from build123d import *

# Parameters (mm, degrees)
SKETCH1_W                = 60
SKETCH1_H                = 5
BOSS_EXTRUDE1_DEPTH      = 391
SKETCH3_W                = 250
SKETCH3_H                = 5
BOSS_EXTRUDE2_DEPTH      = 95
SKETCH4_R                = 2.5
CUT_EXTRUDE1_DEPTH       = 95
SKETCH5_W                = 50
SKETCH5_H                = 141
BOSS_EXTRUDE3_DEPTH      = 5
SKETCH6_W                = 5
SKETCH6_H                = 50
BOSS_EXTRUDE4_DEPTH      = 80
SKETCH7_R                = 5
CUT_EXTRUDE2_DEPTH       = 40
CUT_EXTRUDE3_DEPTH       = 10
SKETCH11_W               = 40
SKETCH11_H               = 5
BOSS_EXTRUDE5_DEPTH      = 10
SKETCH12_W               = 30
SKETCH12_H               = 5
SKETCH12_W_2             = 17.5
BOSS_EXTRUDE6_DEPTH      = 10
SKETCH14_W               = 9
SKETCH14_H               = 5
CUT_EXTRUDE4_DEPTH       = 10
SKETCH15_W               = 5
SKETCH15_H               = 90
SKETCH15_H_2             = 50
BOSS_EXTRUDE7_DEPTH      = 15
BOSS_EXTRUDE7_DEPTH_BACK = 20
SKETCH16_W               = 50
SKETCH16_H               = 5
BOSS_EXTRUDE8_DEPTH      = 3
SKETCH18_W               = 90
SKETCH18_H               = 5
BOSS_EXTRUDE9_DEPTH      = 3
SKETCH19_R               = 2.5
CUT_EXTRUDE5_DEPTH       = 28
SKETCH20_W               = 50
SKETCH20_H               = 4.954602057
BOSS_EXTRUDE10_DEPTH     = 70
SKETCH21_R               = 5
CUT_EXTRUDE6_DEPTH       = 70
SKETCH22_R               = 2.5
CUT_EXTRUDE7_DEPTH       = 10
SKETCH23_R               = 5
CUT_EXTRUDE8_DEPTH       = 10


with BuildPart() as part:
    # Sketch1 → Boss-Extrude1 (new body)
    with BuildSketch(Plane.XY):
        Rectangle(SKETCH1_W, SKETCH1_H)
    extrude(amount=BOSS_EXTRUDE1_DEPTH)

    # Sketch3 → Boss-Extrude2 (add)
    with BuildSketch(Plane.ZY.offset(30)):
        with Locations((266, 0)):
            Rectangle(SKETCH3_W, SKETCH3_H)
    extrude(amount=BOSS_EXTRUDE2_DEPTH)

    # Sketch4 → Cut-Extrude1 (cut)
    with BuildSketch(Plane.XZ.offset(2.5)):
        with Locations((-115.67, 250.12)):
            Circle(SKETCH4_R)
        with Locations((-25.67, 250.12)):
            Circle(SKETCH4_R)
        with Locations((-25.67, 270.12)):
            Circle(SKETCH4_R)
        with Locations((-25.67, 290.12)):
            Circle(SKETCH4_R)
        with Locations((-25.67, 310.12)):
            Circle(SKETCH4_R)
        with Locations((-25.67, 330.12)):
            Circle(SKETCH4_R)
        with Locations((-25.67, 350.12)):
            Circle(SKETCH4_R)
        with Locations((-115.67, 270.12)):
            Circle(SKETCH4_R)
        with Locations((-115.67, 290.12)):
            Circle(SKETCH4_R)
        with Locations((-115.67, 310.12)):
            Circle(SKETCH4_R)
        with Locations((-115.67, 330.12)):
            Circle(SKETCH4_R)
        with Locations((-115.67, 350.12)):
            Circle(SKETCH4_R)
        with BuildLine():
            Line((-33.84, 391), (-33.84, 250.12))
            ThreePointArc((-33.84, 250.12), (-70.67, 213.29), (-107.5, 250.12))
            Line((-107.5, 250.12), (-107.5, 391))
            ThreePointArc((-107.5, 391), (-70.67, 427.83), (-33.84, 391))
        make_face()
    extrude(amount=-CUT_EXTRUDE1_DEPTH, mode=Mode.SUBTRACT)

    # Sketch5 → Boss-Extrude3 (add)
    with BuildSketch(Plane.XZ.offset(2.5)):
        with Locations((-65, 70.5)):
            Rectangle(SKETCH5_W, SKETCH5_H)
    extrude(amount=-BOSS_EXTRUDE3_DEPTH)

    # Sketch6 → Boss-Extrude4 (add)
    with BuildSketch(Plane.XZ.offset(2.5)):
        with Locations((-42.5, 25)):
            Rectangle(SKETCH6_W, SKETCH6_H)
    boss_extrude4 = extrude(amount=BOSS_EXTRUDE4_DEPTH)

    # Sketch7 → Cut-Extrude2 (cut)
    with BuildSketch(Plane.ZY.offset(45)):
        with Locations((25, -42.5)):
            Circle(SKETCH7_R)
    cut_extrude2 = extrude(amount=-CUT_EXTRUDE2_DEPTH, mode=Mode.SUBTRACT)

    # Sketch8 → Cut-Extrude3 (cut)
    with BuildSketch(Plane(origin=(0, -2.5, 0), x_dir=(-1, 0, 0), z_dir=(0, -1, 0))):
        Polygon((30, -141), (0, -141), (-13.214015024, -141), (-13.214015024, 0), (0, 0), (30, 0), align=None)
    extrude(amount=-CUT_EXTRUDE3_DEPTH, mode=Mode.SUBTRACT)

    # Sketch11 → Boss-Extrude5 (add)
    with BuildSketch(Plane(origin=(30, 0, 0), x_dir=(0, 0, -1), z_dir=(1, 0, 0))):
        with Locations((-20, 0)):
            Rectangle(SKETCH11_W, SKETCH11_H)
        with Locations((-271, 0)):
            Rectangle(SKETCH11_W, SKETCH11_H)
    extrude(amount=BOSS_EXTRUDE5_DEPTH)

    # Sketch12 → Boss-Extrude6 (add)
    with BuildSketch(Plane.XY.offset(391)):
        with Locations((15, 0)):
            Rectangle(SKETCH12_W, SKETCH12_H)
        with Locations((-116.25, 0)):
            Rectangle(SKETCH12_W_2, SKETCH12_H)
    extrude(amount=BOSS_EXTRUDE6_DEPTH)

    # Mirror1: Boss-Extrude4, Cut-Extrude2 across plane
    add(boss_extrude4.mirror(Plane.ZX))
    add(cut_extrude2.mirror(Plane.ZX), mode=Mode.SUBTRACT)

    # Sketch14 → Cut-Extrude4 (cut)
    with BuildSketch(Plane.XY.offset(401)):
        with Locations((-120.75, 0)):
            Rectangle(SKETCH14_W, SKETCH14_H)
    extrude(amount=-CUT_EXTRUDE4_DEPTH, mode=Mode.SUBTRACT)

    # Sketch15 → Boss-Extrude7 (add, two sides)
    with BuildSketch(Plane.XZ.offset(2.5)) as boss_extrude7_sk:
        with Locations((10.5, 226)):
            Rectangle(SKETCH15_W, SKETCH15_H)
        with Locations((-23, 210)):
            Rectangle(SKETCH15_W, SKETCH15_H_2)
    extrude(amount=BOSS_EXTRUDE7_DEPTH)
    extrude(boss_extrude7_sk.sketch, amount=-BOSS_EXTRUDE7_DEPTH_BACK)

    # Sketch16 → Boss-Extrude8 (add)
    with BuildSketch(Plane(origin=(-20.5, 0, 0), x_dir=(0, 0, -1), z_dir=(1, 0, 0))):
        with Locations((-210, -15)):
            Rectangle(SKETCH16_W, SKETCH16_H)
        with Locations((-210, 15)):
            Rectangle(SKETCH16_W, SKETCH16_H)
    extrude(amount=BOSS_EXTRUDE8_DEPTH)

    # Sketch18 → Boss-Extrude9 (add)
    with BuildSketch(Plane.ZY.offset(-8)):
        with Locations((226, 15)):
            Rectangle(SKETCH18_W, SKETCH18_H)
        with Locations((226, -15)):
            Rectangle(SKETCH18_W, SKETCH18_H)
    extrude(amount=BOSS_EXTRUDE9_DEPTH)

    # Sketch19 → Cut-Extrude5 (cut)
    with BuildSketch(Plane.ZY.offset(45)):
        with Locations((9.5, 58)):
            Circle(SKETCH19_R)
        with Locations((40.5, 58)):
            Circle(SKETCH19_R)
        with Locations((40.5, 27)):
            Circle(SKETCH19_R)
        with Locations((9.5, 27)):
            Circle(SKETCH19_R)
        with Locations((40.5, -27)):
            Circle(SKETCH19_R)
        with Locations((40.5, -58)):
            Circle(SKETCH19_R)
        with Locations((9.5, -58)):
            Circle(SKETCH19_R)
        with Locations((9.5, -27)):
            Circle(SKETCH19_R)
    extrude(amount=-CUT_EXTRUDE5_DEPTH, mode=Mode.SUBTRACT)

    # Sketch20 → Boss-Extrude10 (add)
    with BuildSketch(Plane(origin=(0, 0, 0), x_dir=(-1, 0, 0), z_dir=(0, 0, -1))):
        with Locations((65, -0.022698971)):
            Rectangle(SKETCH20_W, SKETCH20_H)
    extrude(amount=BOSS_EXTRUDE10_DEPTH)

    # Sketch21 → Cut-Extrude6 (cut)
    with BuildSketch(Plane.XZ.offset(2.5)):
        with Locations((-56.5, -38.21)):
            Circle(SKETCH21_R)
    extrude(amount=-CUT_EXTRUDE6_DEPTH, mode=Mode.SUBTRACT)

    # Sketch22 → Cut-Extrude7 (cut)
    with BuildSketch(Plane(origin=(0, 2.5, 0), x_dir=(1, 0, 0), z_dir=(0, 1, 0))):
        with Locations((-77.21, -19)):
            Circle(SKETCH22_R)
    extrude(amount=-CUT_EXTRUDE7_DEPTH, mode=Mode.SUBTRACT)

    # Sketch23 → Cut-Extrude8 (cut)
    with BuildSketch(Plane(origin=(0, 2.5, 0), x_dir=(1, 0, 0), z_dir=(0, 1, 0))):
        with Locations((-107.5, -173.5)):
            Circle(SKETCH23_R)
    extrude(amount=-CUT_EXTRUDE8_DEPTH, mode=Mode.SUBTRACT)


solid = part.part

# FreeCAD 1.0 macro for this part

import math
import FreeCAD as App
import Part
import Sketcher
from FreeCAD import Vector


def add_polygon(sketch, points):
    """Adds a closed chain of lines whose ends are joined by coincident constraints."""
    first, n = sketch.GeometryCount, len(points)
    for a, b in zip(points, points[1:] + points[:1]):
        sketch.addGeometry(Part.LineSegment(App.Vector(*a, 0), App.Vector(*b, 0)), False)
    for i in range(n):
        sketch.addConstraint(Sketcher.Constraint("Coincident", first + i, 2, first + (i + 1) % n, 1))

doc = App.newDocument("Part")
body = doc.addObject("PartDesign::Body", "Body")

# Sketch on XY plane
sketch1 = body.newObject("Sketcher::SketchObject", "Sketch")
sketch1.AttachmentSupport = (doc.getObject("XY_Plane"), [""])
sketch1.MapMode = "FlatFace"
add_polygon(sketch1, [(-30, 2), (-30, -2), (30, -2), (30, 2)])  # lines 0-3
sketch1.addConstraint([
    Sketcher.Constraint("Vertical", 0),
    Sketcher.Constraint("Horizontal", 1),
    Sketcher.Constraint("Vertical", 2),
    Sketcher.Constraint("Horizontal", 3),
    Sketcher.Constraint("Symmetric", 0, 2, 2, 2, -1, 1),
    Sketcher.Constraint("DistanceX", 1, 1, 1, 2, 60.0),
    Sketcher.Constraint("DistanceY", 0, 2, 0, 1, 5.0),
])
pad1 = body.newObject("PartDesign::Pad", "Pad")
pad1.Profile = sketch1
pad1.Length = 391

# Sketch on YZ plane
sketch2 = body.newObject("Sketcher::SketchObject", "Sketch001")
sketch2.AttachmentSupport = (doc.getObject("YZ_Plane"), [""])
sketch2.MapMode = "FlatFace"
sketch2.AttachmentOffset = App.Placement(Vector(0, 0, -30), App.Rotation())
add_polygon(sketch2, [(2, 141), (-2, 141), (-2, 391), (2, 391)])  # lines 0-3
sketch2.addConstraint([
    Sketcher.Constraint("Horizontal", 0),
    Sketcher.Constraint("Vertical", 1),
    Sketcher.Constraint("Horizontal", 2),
    Sketcher.Constraint("Vertical", 3),
    Sketcher.Constraint("DistanceX", 0, 2, 0, 1, 5.0),
    Sketcher.Constraint("DistanceY", 1, 1, 1, 2, 250.0),
    Sketcher.Constraint("DistanceY", -1, 1, 0, 2, 141.0),
    Sketcher.Constraint("DistanceX", 0, 2, -1, 1, 2.5),
])
pad2 = body.newObject("PartDesign::Pad", "Pad001")
pad2.Profile = sketch2
pad2.Length = 95
pad2.Reversed = True

# Sketch on XZ plane
sketch3 = body.newObject("Sketcher::SketchObject", "Sketch002")
sketch3.AttachmentSupport = (doc.getObject("XZ_Plane"), [""])
sketch3.MapMode = "FlatFace"
sketch3.AttachmentOffset = App.Placement(Vector(0, 0, 2.5), App.Rotation())
sketch3.addGeometry([
    Part.Circle(Vector(-115.7, 250.1, 0), Vector(0, 0, 1), 2.5),  # 0
    Part.Circle(Vector(-25.7, 250.1, 0), Vector(0, 0, 1), 2.5),  # 1
    Part.Circle(Vector(-25.7, 270.1, 0), Vector(0, 0, 1), 2.5),  # 2
    Part.Circle(Vector(-25.7, 290.1, 0), Vector(0, 0, 1), 2.5),  # 3
    Part.Circle(Vector(-25.7, 310.1, 0), Vector(0, 0, 1), 2.5),  # 4
    Part.Circle(Vector(-25.7, 330.1, 0), Vector(0, 0, 1), 2.5),  # 5
    Part.Circle(Vector(-25.7, 350.1, 0), Vector(0, 0, 1), 2.5),  # 6
    Part.Circle(Vector(-115.7, 270.1, 0), Vector(0, 0, 1), 2.5),  # 7
    Part.Circle(Vector(-115.7, 290.1, 0), Vector(0, 0, 1), 2.5),  # 8
    Part.Circle(Vector(-115.7, 310.1, 0), Vector(0, 0, 1), 2.5),  # 9
    Part.Circle(Vector(-115.7, 330.1, 0), Vector(0, 0, 1), 2.5),  # 10
    Part.Circle(Vector(-115.7, 350.1, 0), Vector(0, 0, 1), 2.5),  # 11
    Part.LineSegment(Vector(-33.8, 250.1, 0), Vector(-33.8, 391, 0)),  # 12
    Part.ArcOfCircle(Part.Circle(Vector(-70.7, 391, 0), Vector(0, 0, 1), 36.8), math.radians(0), math.radians(180)),  # 13
    Part.LineSegment(Vector(-107.5, 391, 0), Vector(-107.5, 250.1, 0)),  # 14
    Part.ArcOfCircle(Part.Circle(Vector(-70.7, 250.1, 0), Vector(0, 0, 1), 36.8), math.radians(180), math.radians(360)),  # 15
], False)
sketch3.addConstraint([
    Sketcher.Constraint("Tangent", 12, 2, 13, 1),
    Sketcher.Constraint("Tangent", 13, 2, 14, 1),
    Sketcher.Constraint("Tangent", 14, 2, 15, 1),
    Sketcher.Constraint("Tangent", 15, 2, 12, 1),
    Sketcher.Constraint("Vertical", 12),
    Sketcher.Constraint("Vertical", 14),
    Sketcher.Constraint("Equal", 0, 1),
    Sketcher.Constraint("Equal", 1, 2),
    Sketcher.Constraint("Equal", 2, 3),
    Sketcher.Constraint("Equal", 3, 4),
    Sketcher.Constraint("Equal", 4, 5),
    Sketcher.Constraint("Equal", 5, 6),
    Sketcher.Constraint("Equal", 6, 7),
    Sketcher.Constraint("Equal", 7, 8),
    Sketcher.Constraint("Equal", 8, 9),
    Sketcher.Constraint("Equal", 9, 10),
    Sketcher.Constraint("Equal", 10, 11),
    Sketcher.Constraint("Horizontal", 0, 3, 1, 3),
    Sketcher.Constraint("Horizontal", 2, 3, 7, 3),
    Sketcher.Constraint("Horizontal", 3, 3, 8, 3),
    Sketcher.Constraint("Horizontal", 4, 3, 9, 3),
    Sketcher.Constraint("Horizontal", 5, 3, 10, 3),
    Sketcher.Constraint("Horizontal", 6, 3, 11, 3),
    Sketcher.Constraint("Horizontal", 1, 3, 15, 3),
    Sketcher.Constraint("Vertical", 1, 3, 2, 3),
    Sketcher.Constraint("Vertical", 2, 3, 3, 3),
    Sketcher.Constraint("Vertical", 3, 3, 4, 3),
    Sketcher.Constraint("Vertical", 4, 3, 5, 3),
    Sketcher.Constraint("Vertical", 5, 3, 6, 3),
    Sketcher.Constraint("Vertical", 0, 3, 7, 3),
    Sketcher.Constraint("Vertical", 7, 3, 8, 3),
    Sketcher.Constraint("Vertical", 8, 3, 9, 3),
    Sketcher.Constraint("Vertical", 9, 3, 10, 3),
    Sketcher.Constraint("Vertical", 10, 3, 11, 3),
    Sketcher.Constraint("Diameter", 0, 5.0),
    Sketcher.Constraint("Radius", 13, 36.83),
    Sketcher.Constraint("DistanceY", -1, 1, 13, 3, 391.0),
    Sketcher.Constraint("DistanceX", 0, 3, 1, 3, 90.0),
    Sketcher.Constraint("DistanceY", 1, 3, 2, 3, 20.0),
    Sketcher.Constraint("DistanceY", 2, 3, 3, 3, 20.0),
    Sketcher.Constraint("DistanceY", 3, 3, 4, 3, 20.0),
    Sketcher.Constraint("DistanceY", 4, 3, 5, 3, 20.0),
    Sketcher.Constraint("DistanceY", 5, 3, 6, 3, 20.0),
    Sketcher.Constraint("DistanceX", 13, 3, 6, 3, 45.0),
    Sketcher.Constraint("DistanceY", 12, 1, 12, 2, 140.88),
    Sketcher.Constraint("DistanceX", 13, 2, -1, 1, 107.5),
])
pocket1 = body.newObject("PartDesign::Pocket", "Pocket")
pocket1.Profile = sketch3
pocket1.Length = 95

# Sketch on XZ plane
sketch4 = body.newObject("Sketcher::SketchObject", "Sketch003")
sketch4.AttachmentSupport = (doc.getObject("XZ_Plane"), [""])
sketch4.MapMode = "FlatFace"
sketch4.AttachmentOffset = App.Placement(Vector(0, 0, 2.5), App.Rotation())
add_polygon(sketch4, [(-90, 141), (-90, 0), (-40, 0), (-40, 141)])  # lines 0-3
sketch4.addConstraint([
    Sketcher.Constraint("Vertical", 0),
    Sketcher.Constraint("Horizontal", 1),
    Sketcher.Constraint("Vertical", 2),
    Sketcher.Constraint("Horizontal", 3),
    Sketcher.Constraint("PointOnObject", 0, 2, -1),
    Sketcher.Constraint("DistanceX", 1, 1, 1, 2, 50.0),
    Sketcher.Constraint("DistanceY", 0, 2, 0, 1, 141.0),
    Sketcher.Constraint("DistanceX", 0, 2, -1, 1, 90.0),
])
pad3 = body.newObject("PartDesign::Pad", "Pad002")
pad3.Profile = sketch4
pad3.Length = 5
pad3.Reversed = True

# Sketch on XZ plane
sketch5 = body.newObject("Sketcher::SketchObject", "Sketch004")
sketch5.AttachmentSupport = (doc.getObject("XZ_Plane"), [""])
sketch5.MapMode = "FlatFace"
sketch5.AttachmentOffset = App.Placement(Vector(0, 0, 2.5), App.Rotation())
add_polygon(sketch5, [(-45, 50), (-45, 0), (-40, 0), (-40, 50)])  # lines 0-3
sketch5.addConstraint([
    Sketcher.Constraint("Vertical", 0),
    Sketcher.Constraint("Horizontal", 1),
    Sketcher.Constraint("Vertical", 2),
    Sketcher.Constraint("Horizontal", 3),
    Sketcher.Constraint("PointOnObject", 0, 2, -1),
    Sketcher.Constraint("DistanceX", 1, 1, 1, 2, 5.0),
    Sketcher.Constraint("DistanceY", 0, 2, 0, 1, 50.0),
    Sketcher.Constraint("DistanceX", 0, 2, -1, 1, 45.0),
])
pad4 = body.newObject("PartDesign::Pad", "Pad003")
pad4.Profile = sketch5
pad4.Length = 80

# Sketch on YZ plane
sketch6 = body.newObject("Sketcher::SketchObject", "Sketch005")
sketch6.AttachmentSupport = (doc.getObject("YZ_Plane"), [""])
sketch6.MapMode = "FlatFace"
sketch6.AttachmentOffset = App.Placement(Vector(0, 0, -45), App.Rotation())
sketch6.addGeometry(Part.Circle(Vector(-42, 25, 0), Vector(0, 0, 1), 5), False)
sketch6.addConstraint([
    Sketcher.Constraint("Diameter", 0, 10.0),
    Sketcher.Constraint("DistanceY", -1, 1, 0, 3, 25.0),
    Sketcher.Constraint("DistanceX", 0, 3, -1, 1, 42.5),
])
pocket2 = body.newObject("PartDesign::Pocket", "Pocket001")
pocket2.Profile = sketch6
pocket2.Length = 40
pocket2.Reversed = True

# Sketch on XZ plane
sketch7 = body.newObject("Sketcher::SketchObject", "Sketch006")
sketch7.AttachmentSupport = (doc.getObject("XZ_Plane"), [""])
sketch7.MapMode = "FlatFace"
sketch7.AttachmentOffset = App.Placement(Vector(0, 0, 2.5), App.Rotation())
add_polygon(sketch7, [(13, 141), (-30, 141), (-30, 0), (13, 0)])  # lines 0-3
sketch7.addConstraint([
    Sketcher.Constraint("Horizontal", 0),
    Sketcher.Constraint("Vertical", 1),
    Sketcher.Constraint("Horizontal", 2),
    Sketcher.Constraint("Vertical", 3),
    Sketcher.Constraint("PointOnObject", 1, 2, -1),
    Sketcher.Constraint("DistanceY", 1, 2, 1, 1, 141.0),
    Sketcher.Constraint("DistanceX", 0, 2, -1, 1, 30.0),
    Sketcher.Constraint("DistanceX", 0, 2, 0, 1, 43.214015),
])
pocket3 = body.newObject("PartDesign::Pocket", "Pocket002")
pocket3.Profile = sketch7
pocket3.Length = 10

# Sketch on YZ plane
sketch8 = body.newObject("Sketcher::SketchObject", "Sketch007")
sketch8.AttachmentSupport = (doc.getObject("YZ_Plane"), [""])
sketch8.MapMode = "FlatFace"
sketch8.AttachmentOffset = App.Placement(Vector(0, 0, 30), App.Rotation())
add_polygon(sketch8, [(2, 40), (-2, 40), (-2, 0), (2, 0)])  # lines 0-3
add_polygon(sketch8, [(2, 291), (-2, 291), (-2, 251), (2, 251)])  # lines 4-7
sketch8.addConstraint([
    Sketcher.Constraint("Horizontal", 0),
    Sketcher.Constraint("Vertical", 1),
    Sketcher.Constraint("Horizontal", 2),
    Sketcher.Constraint("Vertical", 3),
    Sketcher.Constraint("Horizontal", 4),
    Sketcher.Constraint("Vertical", 5),
    Sketcher.Constraint("Horizontal", 6),
    Sketcher.Constraint("Vertical", 7),
    Sketcher.Constraint("Symmetric", 1, 2, 2, 2, -1, 1),
    Sketcher.Constraint("Vertical", 1, 2, 4, 2),
    Sketcher.Constraint("Vertical", 3, 2, 6, 2),
    Sketcher.Constraint("Equal", 3, 5),
    Sketcher.Constraint("DistanceX", 0, 2, 0, 1, 5.0),
    Sketcher.Constraint("DistanceY", 1, 2, 1, 1, 40.0),
    Sketcher.Constraint("DistanceY", -1, 1, 4, 2, 291.0),
])
pad5 = body.newObject("PartDesign::Pad", "Pad004")
pad5.Profile = sketch8
pad5.Length = 10

# Sketch on XY plane
sketch9 = body.newObject("Sketcher::SketchObject", "Sketch008")
sketch9.AttachmentSupport = (doc.getObject("XY_Plane"), [""])
sketch9.MapMode = "FlatFace"
sketch9.AttachmentOffset = App.Placement(Vector(0, 0, 391), App.Rotation())
add_polygon(sketch9, [(0, 2), (0, -2), (30, -2), (30, 2)])  # lines 0-3
add_polygon(sketch9, [(-125, 2), (-125, -2), (-108, -2), (-108, 2)])  # lines 4-7
sketch9.addConstraint([
    Sketcher.Constraint("Vertical", 0),
    Sketcher.Constraint("Horizontal", 1),
    Sketcher.Constraint("Vertical", 2),
    Sketcher.Constraint("Horizontal", 3),
    Sketcher.Constraint("Vertical", 4),
    Sketcher.Constraint("Horizontal", 5),
    Sketcher.Constraint("Vertical", 6),
    Sketcher.Constraint("Horizontal", 7),
    Sketcher.Constraint("Symmetric", 0, 2, 3, 2, -1, 1),
    Sketcher.Constraint("Horizontal", 1, 2, 4, 2),
    Sketcher.Constraint("Horizontal", 3, 2, 6, 2),
    Sketcher.Constraint("DistanceX", 1, 1, 1, 2, 30.0),
    Sketcher.Constraint("DistanceY", 0, 2, 0, 1, 5.0),
    Sketcher.Constraint("DistanceX", 5, 1, 5, 2, 17.5),
    Sketcher.Constraint("DistanceX", 4, 2, -1, 1, 125.0),
])
pad6 = body.newObject("PartDesign::Pad", "Pad005")
pad6.Profile = sketch9
pad6.Length = 10
doc.recompute()

mirrored = body.newObject("PartDesign::Mirrored", "Mirrored")
mirrored.Originals = [pad4, pocket2]
mirrored.MirrorPlane = (doc.getObject("XZ_Plane"), [""])
body.Tip = mirrored

# Sketch on XY plane
sketch10 = body.newObject("Sketcher::SketchObject", "Sketch009")
sketch10.AttachmentSupport = (doc.getObject("XY_Plane"), [""])
sketch10.MapMode = "FlatFace"
sketch10.AttachmentOffset = App.Placement(Vector(0, 0, 401), App.Rotation())
add_polygon(sketch10, [(-125, 2), (-125, -2), (-116, -2), (-116, 2)])  # lines 0-3
sketch10.addConstraint([
    Sketcher.Constraint("Vertical", 0),
    Sketcher.Constraint("Horizontal", 1),
    Sketcher.Constraint("Vertical", 2),
    Sketcher.Constraint("Horizontal", 3),
    Sketcher.Constraint("DistanceX", 1, 1, 1, 2, 9.0),
    Sketcher.Constraint("DistanceY", 0, 2, 0, 1, 5.0),
    Sketcher.Constraint("DistanceY", 0, 2, -1, 1, 2.5),
    Sketcher.Constraint("DistanceX", 0, 2, -1, 1, 125.25),
])
pocket4 = body.newObject("PartDesign::Pocket", "Pocket003")
pocket4.Profile = sketch10
pocket4.Length = 10

# Sketch on XZ plane
sketch11 = body.newObject("Sketcher::SketchObject", "Sketch010")
sketch11.AttachmentSupport = (doc.getObject("XZ_Plane"), [""])
sketch11.MapMode = "FlatFace"
sketch11.AttachmentOffset = App.Placement(Vector(0, 0, 2.5), App.Rotation())
add_polygon(sketch11, [(8, 271), (8, 181), (13, 181), (13, 271)])  # lines 0-3
add_polygon(sketch11, [(-26, 235), (-26, 185), (-20, 185), (-20, 235)])  # lines 4-7
sketch11.addConstraint([
    Sketcher.Constraint("Vertical", 0),
    Sketcher.Constraint("Horizontal", 1),
    Sketcher.Constraint("Vertical", 2),
    Sketcher.Constraint("Horizontal", 3),
    Sketcher.Constraint("Vertical", 4),
    Sketcher.Constraint("Horizontal", 5),
    Sketcher.Constraint("Vertical", 6),
    Sketcher.Constraint("Horizontal", 7),
    Sketcher.Constraint("Equal", 3, 5),
    Sketcher.Constraint("DistanceX", 1, 1, 1, 2, 5.0),
    Sketcher.Constraint("DistanceY", 0, 2, 0, 1, 90.0),
    Sketcher.Constraint("DistanceY", 4, 2, 4, 1, 50.0),
    Sketcher.Constraint("DistanceX", -1, 1, 0, 2, 8.0),
    Sketcher.Constraint("DistanceY", -1, 1, 0, 2, 181.0),
    Sketcher.Constraint("DistanceY", -1, 1, 4, 2, 185.0),
    Sketcher.Constraint("DistanceX", 4, 2, -1, 1, 25.5),
])
pad7 = body.newObject("PartDesign::Pad", "Pad006")
pad7.Profile = sketch11
pad7.Type = "TwoLengths"
pad7.Length = 15
pad7.Length2 = 20

# Sketch on YZ plane
sketch12 = body.newObject("Sketcher::SketchObject", "Sketch011")
sketch12.AttachmentSupport = (doc.getObject("YZ_Plane"), [""])
sketch12.MapMode = "FlatFace"
sketch12.AttachmentOffset = App.Placement(Vector(0, 0, -20.5), App.Rotation())
add_polygon(sketch12, [(-12, 235), (-18, 235), (-18, 185), (-12, 185)])  # lines 0-3
add_polygon(sketch12, [(18, 235), (12, 235), (12, 185), (18, 185)])  # lines 4-7
sketch12.addConstraint([
    Sketcher.Constraint("Horizontal", 0),
    Sketcher.Constraint("Vertical", 1),
    Sketcher.Constraint("Horizontal", 2),
    Sketcher.Constraint("Vertical", 3),
    Sketcher.Constraint("Horizontal", 4),
    Sketcher.Constraint("Vertical", 5),
    Sketcher.Constraint("Horizontal", 6),
    Sketcher.Constraint("Vertical", 7),
    Sketcher.Constraint("Symmetric", 3, 2, 4, 2, -2),
    Sketcher.Constraint("Symmetric", 1, 2, 6, 2, -2),
    Sketcher.Constraint("DistanceX", 0, 2, 0, 1, 5.0),
    Sketcher.Constraint("DistanceY", 1, 2, 1, 1, 50.0),
    Sketcher.Constraint("DistanceY", -1, 1, 0, 2, 235.0),
    Sketcher.Constraint("DistanceX", 3, 2, 4, 2, 25.0),
])
pad8 = body.newObject("PartDesign::Pad", "Pad007")
pad8.Profile = sketch12
pad8.Length = 3

# Sketch on YZ plane
sketch13 = body.newObject("Sketcher::SketchObject", "Sketch012")
sketch13.AttachmentSupport = (doc.getObject("YZ_Plane"), [""])
sketch13.MapMode = "FlatFace"
sketch13.AttachmentOffset = App.Placement(Vector(0, 0, 8), App.Rotation())
add_polygon(sketch13, [(18, 181), (12, 181), (12, 271), (18, 271)])  # lines 0-3
add_polygon(sketch13, [(-12, 181), (-18, 181), (-18, 271), (-12, 271)])  # lines 4-7
sketch13.addConstraint([
    Sketcher.Constraint("Horizontal", 0),
    Sketcher.Constraint("Vertical", 1),
    Sketcher.Constraint("Horizontal", 2),
    Sketcher.Constraint("Vertical", 3),
    Sketcher.Constraint("Horizontal", 4),
    Sketcher.Constraint("Vertical", 5),
    Sketcher.Constraint("Horizontal", 6),
    Sketcher.Constraint("Vertical", 7),
    Sketcher.Constraint("Symmetric", 3, 2, 4, 2, -2),
    Sketcher.Constraint("Symmetric", 1, 2, 6, 2, -2),
    Sketcher.Constraint("DistanceX", 0, 2, 0, 1, 5.0),
    Sketcher.Constraint("DistanceY", 1, 1, 1, 2, 90.0),
    Sketcher.Constraint("DistanceY", -1, 1, 0, 2, 181.0),
    Sketcher.Constraint("DistanceX", 4, 2, 0, 2, 30.0),
])
pad9 = body.newObject("PartDesign::Pad", "Pad008")
pad9.Profile = sketch13
pad9.Length = 3
pad9.Reversed = True

# Sketch on YZ plane
sketch14 = body.newObject("Sketcher::SketchObject", "Sketch013")
sketch14.AttachmentSupport = (doc.getObject("YZ_Plane"), [""])
sketch14.MapMode = "FlatFace"
sketch14.AttachmentOffset = App.Placement(Vector(0, 0, -45), App.Rotation())
sketch14.addGeometry([
    Part.Circle(Vector(58, 9.5, 0), Vector(0, 0, 1), 2.5),  # 0
    Part.Circle(Vector(58, 40.5, 0), Vector(0, 0, 1), 2.5),  # 1
    Part.Circle(Vector(27, 40.5, 0), Vector(0, 0, 1), 2.5),  # 2
    Part.Circle(Vector(27, 9.5, 0), Vector(0, 0, 1), 2.5),  # 3
    Part.Circle(Vector(-27, 40.5, 0), Vector(0, 0, 1), 2.5),  # 4
    Part.Circle(Vector(-58, 40.5, 0), Vector(0, 0, 1), 2.5),  # 5
    Part.Circle(Vector(-58, 9.5, 0), Vector(0, 0, 1), 2.5),  # 6
    Part.Circle(Vector(-27, 9.5, 0), Vector(0, 0, 1), 2.5),  # 7
], False)
sketch14.addConstraint([
    Sketcher.Constraint("Equal", 0, 1),
    Sketcher.Constraint("Equal", 1, 2),
    Sketcher.Constraint("Equal", 2, 3),
    Sketcher.Constraint("Equal", 3, 4),
    Sketcher.Constraint("Equal", 4, 5),
    Sketcher.Constraint("Equal", 5, 6),
    Sketcher.Constraint("Equal", 6, 7),
    Sketcher.Constraint("Symmetric", 2, 3, 4, 3, -2),
    Sketcher.Constraint("Symmetric", 1, 3, 5, 3, -2),
    Sketcher.Constraint("Symmetric", 0, 3, 6, 3, -2),
    Sketcher.Constraint("Symmetric", 3, 3, 7, 3, -2),
    Sketcher.Constraint("Horizontal", 1, 3, 2, 3),
    Sketcher.Constraint("Horizontal", 0, 3, 3, 3),
    Sketcher.Constraint("Vertical", 0, 3, 1, 3),
    Sketcher.Constraint("Vertical", 2, 3, 3, 3),
    Sketcher.Constraint("Diameter", 0, 5.0),
    Sketcher.Constraint("DistanceX", -1, 1, 0, 3, 58.0),
    Sketcher.Constraint("DistanceX", -1, 1, 2, 3, 27.0),
    Sketcher.Constraint("DistanceY", 0, 3, 1, 3, 31.0),
    Sketcher.Constraint("DistanceY", -1, 1, 0, 3, 9.5),
])
pocket5 = body.newObject("PartDesign::Pocket", "Pocket004")
pocket5.Profile = sketch14
pocket5.Length = 28
pocket5.Reversed = True

# Sketch on XY plane
sketch15 = body.newObject("Sketcher::SketchObject", "Sketch014")
sketch15.AttachmentSupport = (doc.getObject("XY_Plane"), [""])
sketch15.MapMode = "FlatFace"
add_polygon(sketch15, [(-40, 2.5), (-40, -2.5), (-90, -2.5), (-90, 2.5)])  # lines 0-3
sketch15.addConstraint([
    Sketcher.Constraint("Vertical", 0),
    Sketcher.Constraint("Horizontal", 1),
    Sketcher.Constraint("Vertical", 2),
    Sketcher.Constraint("Horizontal", 3),
    Sketcher.Constraint("DistanceX", 1, 2, 1, 1, 50.0),
    Sketcher.Constraint("DistanceX", 0, 2, -1, 1, 40.0),
    Sketcher.Constraint("DistanceY", 0, 2, -1, 1, 2.5),
    Sketcher.Constraint("DistanceY", 0, 2, 0, 1, 4.954602),
])
pad10 = body.newObject("PartDesign::Pad", "Pad009")
pad10.Profile = sketch15
pad10.Length = 70
pad10.Reversed = True

# Sketch on XZ plane
sketch16 = body.newObject("Sketcher::SketchObject", "Sketch015")
sketch16.AttachmentSupport = (doc.getObject("XZ_Plane"), [""])
sketch16.MapMode = "FlatFace"
sketch16.AttachmentOffset = App.Placement(Vector(0, 0, 2.5), App.Rotation())
sketch16.addGeometry(Part.Circle(Vector(-56, -38, 0), Vector(0, 0, 1), 5), False)
sketch16.addConstraint([
    Sketcher.Constraint("Diameter", 0, 10.0),
    Sketcher.Constraint("DistanceX", 0, 3, -1, 1, 56.5),
    Sketcher.Constraint("DistanceY", 0, 3, -1, 1, 38.21),
])
pocket6 = body.newObject("PartDesign::Pocket", "Pocket005")
pocket6.Profile = sketch16
pocket6.Length = 70

# Sketch on XZ plane
sketch17 = body.newObject("Sketcher::SketchObject", "Sketch016")
sketch17.AttachmentSupport = (doc.getObject("XZ_Plane"), [""])
sketch17.MapMode = "FlatFace"
sketch17.AttachmentOffset = App.Placement(Vector(0, 0, -2.5), App.Rotation())
sketch17.addGeometry(Part.Circle(Vector(-77.2, 19, 0), Vector(0, 0, 1), 2.5), False)
sketch17.addConstraint([
    Sketcher.Constraint("Diameter", 0, 5.0),
    Sketcher.Constraint("DistanceY", -1, 1, 0, 3, 19.0),
    Sketcher.Constraint("DistanceX", 0, 3, -1, 1, 77.21),
])
pocket7 = body.newObject("PartDesign::Pocket", "Pocket006")
pocket7.Profile = sketch17
pocket7.Length = 10
pocket7.Reversed = True

# Sketch on XZ plane
sketch18 = body.newObject("Sketcher::SketchObject", "Sketch017")
sketch18.AttachmentSupport = (doc.getObject("XZ_Plane"), [""])
sketch18.MapMode = "FlatFace"
sketch18.AttachmentOffset = App.Placement(Vector(0, 0, -2.5), App.Rotation())
sketch18.addGeometry(Part.Circle(Vector(-108, 174, 0), Vector(0, 0, 1), 5), False)
sketch18.addConstraint([
    Sketcher.Constraint("Diameter", 0, 10.0),
    Sketcher.Constraint("DistanceX", 0, 3, -1, 1, 107.5),
    Sketcher.Constraint("DistanceY", -1, 1, 0, 3, 173.5),
])
pocket8 = body.newObject("PartDesign::Pocket", "Pocket007")
pocket8.Profile = sketch18
pocket8.Length = 10
pocket8.Reversed = True

doc.recompute()
